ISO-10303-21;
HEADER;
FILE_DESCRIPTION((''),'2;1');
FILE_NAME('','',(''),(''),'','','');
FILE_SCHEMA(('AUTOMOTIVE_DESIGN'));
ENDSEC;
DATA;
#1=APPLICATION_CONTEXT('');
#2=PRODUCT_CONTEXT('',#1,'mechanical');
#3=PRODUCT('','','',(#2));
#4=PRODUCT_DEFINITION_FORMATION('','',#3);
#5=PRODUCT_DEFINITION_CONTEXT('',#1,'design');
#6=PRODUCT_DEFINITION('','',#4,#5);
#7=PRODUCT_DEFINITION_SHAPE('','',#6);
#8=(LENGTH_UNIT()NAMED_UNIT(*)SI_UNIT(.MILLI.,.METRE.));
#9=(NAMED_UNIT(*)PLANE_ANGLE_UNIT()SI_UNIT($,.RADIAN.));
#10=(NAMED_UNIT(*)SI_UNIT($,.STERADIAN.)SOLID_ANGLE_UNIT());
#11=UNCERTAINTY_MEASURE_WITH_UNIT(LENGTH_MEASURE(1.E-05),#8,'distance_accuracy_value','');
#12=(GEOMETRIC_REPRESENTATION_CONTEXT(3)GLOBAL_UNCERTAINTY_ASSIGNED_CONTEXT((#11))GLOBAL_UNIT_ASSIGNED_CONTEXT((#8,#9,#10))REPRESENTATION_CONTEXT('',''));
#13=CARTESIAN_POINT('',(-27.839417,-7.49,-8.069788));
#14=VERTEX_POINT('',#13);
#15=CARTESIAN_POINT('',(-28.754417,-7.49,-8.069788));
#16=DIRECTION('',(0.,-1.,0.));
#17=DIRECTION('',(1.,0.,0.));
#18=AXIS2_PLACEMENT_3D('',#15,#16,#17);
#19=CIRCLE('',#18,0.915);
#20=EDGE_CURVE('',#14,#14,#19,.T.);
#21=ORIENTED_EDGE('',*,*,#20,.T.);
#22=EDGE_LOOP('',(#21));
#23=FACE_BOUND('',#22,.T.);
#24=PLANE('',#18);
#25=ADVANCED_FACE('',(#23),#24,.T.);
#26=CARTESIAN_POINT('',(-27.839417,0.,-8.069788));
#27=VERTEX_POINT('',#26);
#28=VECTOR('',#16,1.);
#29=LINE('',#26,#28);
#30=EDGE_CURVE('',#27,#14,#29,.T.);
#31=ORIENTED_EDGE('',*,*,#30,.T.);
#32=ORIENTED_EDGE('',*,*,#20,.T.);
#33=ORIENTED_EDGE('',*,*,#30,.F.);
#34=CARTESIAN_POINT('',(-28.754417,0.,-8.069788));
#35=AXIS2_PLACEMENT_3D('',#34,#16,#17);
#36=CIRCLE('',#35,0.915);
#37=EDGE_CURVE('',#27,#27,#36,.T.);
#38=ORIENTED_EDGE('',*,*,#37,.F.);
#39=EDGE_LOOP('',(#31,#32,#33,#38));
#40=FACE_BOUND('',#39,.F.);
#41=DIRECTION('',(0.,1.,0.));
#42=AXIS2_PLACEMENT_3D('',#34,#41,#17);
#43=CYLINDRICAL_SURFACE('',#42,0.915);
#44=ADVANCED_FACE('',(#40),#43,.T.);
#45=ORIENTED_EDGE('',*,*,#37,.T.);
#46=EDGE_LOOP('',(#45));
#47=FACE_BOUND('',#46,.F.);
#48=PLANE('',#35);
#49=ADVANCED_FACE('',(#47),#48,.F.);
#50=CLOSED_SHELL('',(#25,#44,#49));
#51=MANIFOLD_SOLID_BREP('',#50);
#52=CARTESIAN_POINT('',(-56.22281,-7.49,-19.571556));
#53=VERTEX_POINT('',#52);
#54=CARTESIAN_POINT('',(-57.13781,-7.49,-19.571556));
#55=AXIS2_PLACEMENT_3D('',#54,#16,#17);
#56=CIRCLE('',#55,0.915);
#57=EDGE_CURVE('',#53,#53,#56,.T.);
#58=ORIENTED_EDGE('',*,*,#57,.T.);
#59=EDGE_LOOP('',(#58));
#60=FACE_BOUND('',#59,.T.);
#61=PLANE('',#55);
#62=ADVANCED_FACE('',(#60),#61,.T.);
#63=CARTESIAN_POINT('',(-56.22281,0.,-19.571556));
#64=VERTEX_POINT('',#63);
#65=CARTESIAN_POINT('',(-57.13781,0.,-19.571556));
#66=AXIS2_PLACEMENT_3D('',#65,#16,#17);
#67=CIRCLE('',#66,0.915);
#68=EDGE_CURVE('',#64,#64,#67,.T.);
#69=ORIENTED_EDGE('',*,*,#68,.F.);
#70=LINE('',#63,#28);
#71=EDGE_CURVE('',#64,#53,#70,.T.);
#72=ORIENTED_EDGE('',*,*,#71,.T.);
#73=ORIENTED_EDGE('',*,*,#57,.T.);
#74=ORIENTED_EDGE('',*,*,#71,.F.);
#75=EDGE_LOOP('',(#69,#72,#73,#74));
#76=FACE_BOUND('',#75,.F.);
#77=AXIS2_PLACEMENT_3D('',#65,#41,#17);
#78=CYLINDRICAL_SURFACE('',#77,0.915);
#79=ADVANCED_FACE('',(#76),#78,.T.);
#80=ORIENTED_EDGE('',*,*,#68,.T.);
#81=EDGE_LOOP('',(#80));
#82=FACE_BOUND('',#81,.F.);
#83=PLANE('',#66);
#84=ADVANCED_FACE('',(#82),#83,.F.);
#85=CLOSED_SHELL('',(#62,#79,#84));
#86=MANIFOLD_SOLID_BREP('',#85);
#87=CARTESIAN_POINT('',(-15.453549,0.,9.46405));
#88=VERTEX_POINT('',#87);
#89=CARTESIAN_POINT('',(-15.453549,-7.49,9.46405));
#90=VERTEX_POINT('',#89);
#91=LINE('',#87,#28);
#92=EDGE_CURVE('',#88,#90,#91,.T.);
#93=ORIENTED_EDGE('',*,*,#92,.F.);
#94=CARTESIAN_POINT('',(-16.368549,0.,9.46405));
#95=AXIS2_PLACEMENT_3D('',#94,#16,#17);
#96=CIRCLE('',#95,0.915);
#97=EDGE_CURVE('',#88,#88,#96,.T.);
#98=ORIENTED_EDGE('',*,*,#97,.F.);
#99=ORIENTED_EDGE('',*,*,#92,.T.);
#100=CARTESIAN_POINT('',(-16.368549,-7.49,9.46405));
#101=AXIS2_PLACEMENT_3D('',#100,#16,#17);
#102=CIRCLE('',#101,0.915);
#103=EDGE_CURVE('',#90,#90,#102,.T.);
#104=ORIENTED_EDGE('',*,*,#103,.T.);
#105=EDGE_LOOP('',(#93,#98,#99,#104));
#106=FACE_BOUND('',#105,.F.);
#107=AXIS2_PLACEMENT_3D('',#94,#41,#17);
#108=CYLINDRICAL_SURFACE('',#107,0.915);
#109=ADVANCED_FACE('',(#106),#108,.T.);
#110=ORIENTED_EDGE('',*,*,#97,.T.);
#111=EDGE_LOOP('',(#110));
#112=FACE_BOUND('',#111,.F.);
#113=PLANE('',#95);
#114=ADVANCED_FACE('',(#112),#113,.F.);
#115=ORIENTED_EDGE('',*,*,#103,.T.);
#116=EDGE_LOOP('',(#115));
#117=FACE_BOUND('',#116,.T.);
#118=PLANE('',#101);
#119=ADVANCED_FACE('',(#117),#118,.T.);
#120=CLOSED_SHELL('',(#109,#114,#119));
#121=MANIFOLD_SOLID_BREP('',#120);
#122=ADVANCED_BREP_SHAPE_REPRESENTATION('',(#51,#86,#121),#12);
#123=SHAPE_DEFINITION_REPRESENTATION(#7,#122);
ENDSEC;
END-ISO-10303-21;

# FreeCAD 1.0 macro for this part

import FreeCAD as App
import Part
import Sketcher

doc = App.newDocument("Part")
body = doc.addObject("PartDesign::Body", "Body")

sketch1 = body.newObject("Sketcher::SketchObject", "Sketch")
sketch1.AttachmentSupport = (doc.getObject("XZ_Plane"), [""])
sketch1.MapMode = "FlatFace"
sketch1.addGeometry(Part.Circle(App.Vector(-16.4, 9.5, 0), App.Vector(0, 0, 1), 0.9), False)
sketch1.addConstraint([
    Sketcher.Constraint("Diameter", 0, 1.83),
    Sketcher.Constraint("DistanceX", 0, 3, -1, 1, 16.368549),
    Sketcher.Constraint("DistanceY", -1, 1, 0, 3, 9.46405),
])
pad1 = body.newObject("PartDesign::Pad", "Pad")
pad1.Profile = sketch1
pad1.Length = 7.49
body2 = doc.addObject("PartDesign::Body", "Body001")

sketch2 = body2.newObject("Sketcher::SketchObject", "Sketch001")
sketch2.AttachmentSupport = (doc.getObject("XZ_Plane001"), [""])
sketch2.MapMode = "FlatFace"
sketch2.addGeometry(Part.Circle(App.Vector(-28.8, -8.1, 0), App.Vector(0, 0, 1), 0.9), False)
sketch2.addConstraint([
    Sketcher.Constraint("Diameter", 0, 1.83),
    Sketcher.Constraint("DistanceY", 0, 3, -1, 1, 8.069788),
    Sketcher.Constraint("DistanceX", 0, 3, -1, 1, 28.754417),
])
pad2 = body2.newObject("PartDesign::Pad", "Pad001")
pad2.Profile = sketch2
pad2.Length = 7.49
body3 = doc.addObject("PartDesign::Body", "Body002")

sketch3 = body3.newObject("Sketcher::SketchObject", "Sketch002")
sketch3.AttachmentSupport = (doc.getObject("XZ_Plane002"), [""])
sketch3.MapMode = "FlatFace"
sketch3.addGeometry(Part.Circle(App.Vector(-57.1, -19.6, 0), App.Vector(0, 0, 1), 0.9), False)
sketch3.addConstraint([
    Sketcher.Constraint("Diameter", 0, 1.83),
    Sketcher.Constraint("DistanceX", 0, 3, -1, 1, 57.13781),
    Sketcher.Constraint("DistanceY", 0, 3, -1, 1, 19.571556),
])
pad3 = body3.newObject("PartDesign::Pad", "Pad002")
pad3.Profile = sketch3
pad3.Length = 7.49

doc.recompute()
